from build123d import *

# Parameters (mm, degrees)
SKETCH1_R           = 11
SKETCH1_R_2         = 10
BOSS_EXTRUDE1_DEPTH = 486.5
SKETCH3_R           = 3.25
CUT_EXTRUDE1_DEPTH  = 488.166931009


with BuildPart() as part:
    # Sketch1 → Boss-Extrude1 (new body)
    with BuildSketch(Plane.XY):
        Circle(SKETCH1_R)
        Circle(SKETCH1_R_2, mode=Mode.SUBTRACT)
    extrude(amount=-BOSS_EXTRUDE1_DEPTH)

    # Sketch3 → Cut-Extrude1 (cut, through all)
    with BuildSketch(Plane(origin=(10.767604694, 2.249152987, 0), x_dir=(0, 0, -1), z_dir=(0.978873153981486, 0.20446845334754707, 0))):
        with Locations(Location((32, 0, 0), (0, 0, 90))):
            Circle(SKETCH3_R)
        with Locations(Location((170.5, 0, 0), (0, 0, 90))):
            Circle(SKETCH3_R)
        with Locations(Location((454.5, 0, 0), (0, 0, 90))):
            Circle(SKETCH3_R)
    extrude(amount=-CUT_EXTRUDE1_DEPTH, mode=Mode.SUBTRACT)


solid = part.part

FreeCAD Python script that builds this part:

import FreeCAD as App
import Part
import Sketcher

V = App.Vector
Q = App.Units.Quantity

doc = App.newDocument("Part")
body = doc.addObject("PartDesign::Body", "Body")

sketch1 = doc.addObject("Sketcher::SketchObject", "Sketch")
body.addObject(sketch1)
sketch1.AttachmentSupport = (doc.XY_Plane, [""])
sketch1.MapMode = "FlatFace"
sketch1.addGeometry([
    Part.Circle(V(0, 0, 0), V(0, 0, 1), 11),
    Part.Circle(V(0, 0, 0), V(0, 0, 1), 10),
], False)
sketch1.addConstraint([
    Sketcher.Constraint("Coincident", 0, 3, -1, 1),
    Sketcher.Constraint("Coincident", 1, 3, -1, 1),
    Sketcher.Constraint("Diameter", 0, Q("22 mm")),
    Sketcher.Constraint("Diameter", 1, Q("20 mm")),
])
pad1 = doc.addObject("PartDesign::Pad", "Pad")
body.addObject(pad1)
pad1.Profile = sketch1
pad1.Length = 486.5
pad1.Reversed = True

sketch2 = doc.addObject("Sketcher::SketchObject", "Sketch001")
body.addObject(sketch2)
sketch2.Placement = App.Placement(V(10.767605, 2.249153, 0), App.Rotation(V(0, 0, -1), V(-0.204468453, 0.978873154, 0), V(0.978873154, 0.204468453, 0), "ZXY"))
sketch2.addGeometry([
    Part.Circle(V(32, 0, 0), V(0, 0, 1), 3.25),
    Part.Circle(V(170.5, 0, 0), V(0, 0, 1), 3.25),
    Part.Circle(V(454.5, 0, 0), V(0, 0, 1), 3.25),
], False)
sketch2.addConstraint([
    Sketcher.Constraint("Equal", 0, 1),
    Sketcher.Constraint("Equal", 1, 2),
    Sketcher.Constraint("PointOnObject", 0, 3, -1),
    Sketcher.Constraint("PointOnObject", 1, 3, -1),
    Sketcher.Constraint("PointOnObject", 2, 3, -1),
    Sketcher.Constraint("Diameter", 0, Q("6.5 mm")),
    Sketcher.Constraint("DistanceX", -1, 1, 0, 3, Q("32 mm")),
    Sketcher.Constraint("DistanceX", 1, 3, 2, 3, Q("284 mm")),
    Sketcher.Constraint("DistanceX", -1, 1, 1, 3, Q("170.5 mm")),
])
pocket1 = doc.addObject("PartDesign::Pocket", "Pocket")
body.addObject(pocket1)
pocket1.Profile = sketch2
pocket1.Type = "ThroughAll"

doc.recompute()
